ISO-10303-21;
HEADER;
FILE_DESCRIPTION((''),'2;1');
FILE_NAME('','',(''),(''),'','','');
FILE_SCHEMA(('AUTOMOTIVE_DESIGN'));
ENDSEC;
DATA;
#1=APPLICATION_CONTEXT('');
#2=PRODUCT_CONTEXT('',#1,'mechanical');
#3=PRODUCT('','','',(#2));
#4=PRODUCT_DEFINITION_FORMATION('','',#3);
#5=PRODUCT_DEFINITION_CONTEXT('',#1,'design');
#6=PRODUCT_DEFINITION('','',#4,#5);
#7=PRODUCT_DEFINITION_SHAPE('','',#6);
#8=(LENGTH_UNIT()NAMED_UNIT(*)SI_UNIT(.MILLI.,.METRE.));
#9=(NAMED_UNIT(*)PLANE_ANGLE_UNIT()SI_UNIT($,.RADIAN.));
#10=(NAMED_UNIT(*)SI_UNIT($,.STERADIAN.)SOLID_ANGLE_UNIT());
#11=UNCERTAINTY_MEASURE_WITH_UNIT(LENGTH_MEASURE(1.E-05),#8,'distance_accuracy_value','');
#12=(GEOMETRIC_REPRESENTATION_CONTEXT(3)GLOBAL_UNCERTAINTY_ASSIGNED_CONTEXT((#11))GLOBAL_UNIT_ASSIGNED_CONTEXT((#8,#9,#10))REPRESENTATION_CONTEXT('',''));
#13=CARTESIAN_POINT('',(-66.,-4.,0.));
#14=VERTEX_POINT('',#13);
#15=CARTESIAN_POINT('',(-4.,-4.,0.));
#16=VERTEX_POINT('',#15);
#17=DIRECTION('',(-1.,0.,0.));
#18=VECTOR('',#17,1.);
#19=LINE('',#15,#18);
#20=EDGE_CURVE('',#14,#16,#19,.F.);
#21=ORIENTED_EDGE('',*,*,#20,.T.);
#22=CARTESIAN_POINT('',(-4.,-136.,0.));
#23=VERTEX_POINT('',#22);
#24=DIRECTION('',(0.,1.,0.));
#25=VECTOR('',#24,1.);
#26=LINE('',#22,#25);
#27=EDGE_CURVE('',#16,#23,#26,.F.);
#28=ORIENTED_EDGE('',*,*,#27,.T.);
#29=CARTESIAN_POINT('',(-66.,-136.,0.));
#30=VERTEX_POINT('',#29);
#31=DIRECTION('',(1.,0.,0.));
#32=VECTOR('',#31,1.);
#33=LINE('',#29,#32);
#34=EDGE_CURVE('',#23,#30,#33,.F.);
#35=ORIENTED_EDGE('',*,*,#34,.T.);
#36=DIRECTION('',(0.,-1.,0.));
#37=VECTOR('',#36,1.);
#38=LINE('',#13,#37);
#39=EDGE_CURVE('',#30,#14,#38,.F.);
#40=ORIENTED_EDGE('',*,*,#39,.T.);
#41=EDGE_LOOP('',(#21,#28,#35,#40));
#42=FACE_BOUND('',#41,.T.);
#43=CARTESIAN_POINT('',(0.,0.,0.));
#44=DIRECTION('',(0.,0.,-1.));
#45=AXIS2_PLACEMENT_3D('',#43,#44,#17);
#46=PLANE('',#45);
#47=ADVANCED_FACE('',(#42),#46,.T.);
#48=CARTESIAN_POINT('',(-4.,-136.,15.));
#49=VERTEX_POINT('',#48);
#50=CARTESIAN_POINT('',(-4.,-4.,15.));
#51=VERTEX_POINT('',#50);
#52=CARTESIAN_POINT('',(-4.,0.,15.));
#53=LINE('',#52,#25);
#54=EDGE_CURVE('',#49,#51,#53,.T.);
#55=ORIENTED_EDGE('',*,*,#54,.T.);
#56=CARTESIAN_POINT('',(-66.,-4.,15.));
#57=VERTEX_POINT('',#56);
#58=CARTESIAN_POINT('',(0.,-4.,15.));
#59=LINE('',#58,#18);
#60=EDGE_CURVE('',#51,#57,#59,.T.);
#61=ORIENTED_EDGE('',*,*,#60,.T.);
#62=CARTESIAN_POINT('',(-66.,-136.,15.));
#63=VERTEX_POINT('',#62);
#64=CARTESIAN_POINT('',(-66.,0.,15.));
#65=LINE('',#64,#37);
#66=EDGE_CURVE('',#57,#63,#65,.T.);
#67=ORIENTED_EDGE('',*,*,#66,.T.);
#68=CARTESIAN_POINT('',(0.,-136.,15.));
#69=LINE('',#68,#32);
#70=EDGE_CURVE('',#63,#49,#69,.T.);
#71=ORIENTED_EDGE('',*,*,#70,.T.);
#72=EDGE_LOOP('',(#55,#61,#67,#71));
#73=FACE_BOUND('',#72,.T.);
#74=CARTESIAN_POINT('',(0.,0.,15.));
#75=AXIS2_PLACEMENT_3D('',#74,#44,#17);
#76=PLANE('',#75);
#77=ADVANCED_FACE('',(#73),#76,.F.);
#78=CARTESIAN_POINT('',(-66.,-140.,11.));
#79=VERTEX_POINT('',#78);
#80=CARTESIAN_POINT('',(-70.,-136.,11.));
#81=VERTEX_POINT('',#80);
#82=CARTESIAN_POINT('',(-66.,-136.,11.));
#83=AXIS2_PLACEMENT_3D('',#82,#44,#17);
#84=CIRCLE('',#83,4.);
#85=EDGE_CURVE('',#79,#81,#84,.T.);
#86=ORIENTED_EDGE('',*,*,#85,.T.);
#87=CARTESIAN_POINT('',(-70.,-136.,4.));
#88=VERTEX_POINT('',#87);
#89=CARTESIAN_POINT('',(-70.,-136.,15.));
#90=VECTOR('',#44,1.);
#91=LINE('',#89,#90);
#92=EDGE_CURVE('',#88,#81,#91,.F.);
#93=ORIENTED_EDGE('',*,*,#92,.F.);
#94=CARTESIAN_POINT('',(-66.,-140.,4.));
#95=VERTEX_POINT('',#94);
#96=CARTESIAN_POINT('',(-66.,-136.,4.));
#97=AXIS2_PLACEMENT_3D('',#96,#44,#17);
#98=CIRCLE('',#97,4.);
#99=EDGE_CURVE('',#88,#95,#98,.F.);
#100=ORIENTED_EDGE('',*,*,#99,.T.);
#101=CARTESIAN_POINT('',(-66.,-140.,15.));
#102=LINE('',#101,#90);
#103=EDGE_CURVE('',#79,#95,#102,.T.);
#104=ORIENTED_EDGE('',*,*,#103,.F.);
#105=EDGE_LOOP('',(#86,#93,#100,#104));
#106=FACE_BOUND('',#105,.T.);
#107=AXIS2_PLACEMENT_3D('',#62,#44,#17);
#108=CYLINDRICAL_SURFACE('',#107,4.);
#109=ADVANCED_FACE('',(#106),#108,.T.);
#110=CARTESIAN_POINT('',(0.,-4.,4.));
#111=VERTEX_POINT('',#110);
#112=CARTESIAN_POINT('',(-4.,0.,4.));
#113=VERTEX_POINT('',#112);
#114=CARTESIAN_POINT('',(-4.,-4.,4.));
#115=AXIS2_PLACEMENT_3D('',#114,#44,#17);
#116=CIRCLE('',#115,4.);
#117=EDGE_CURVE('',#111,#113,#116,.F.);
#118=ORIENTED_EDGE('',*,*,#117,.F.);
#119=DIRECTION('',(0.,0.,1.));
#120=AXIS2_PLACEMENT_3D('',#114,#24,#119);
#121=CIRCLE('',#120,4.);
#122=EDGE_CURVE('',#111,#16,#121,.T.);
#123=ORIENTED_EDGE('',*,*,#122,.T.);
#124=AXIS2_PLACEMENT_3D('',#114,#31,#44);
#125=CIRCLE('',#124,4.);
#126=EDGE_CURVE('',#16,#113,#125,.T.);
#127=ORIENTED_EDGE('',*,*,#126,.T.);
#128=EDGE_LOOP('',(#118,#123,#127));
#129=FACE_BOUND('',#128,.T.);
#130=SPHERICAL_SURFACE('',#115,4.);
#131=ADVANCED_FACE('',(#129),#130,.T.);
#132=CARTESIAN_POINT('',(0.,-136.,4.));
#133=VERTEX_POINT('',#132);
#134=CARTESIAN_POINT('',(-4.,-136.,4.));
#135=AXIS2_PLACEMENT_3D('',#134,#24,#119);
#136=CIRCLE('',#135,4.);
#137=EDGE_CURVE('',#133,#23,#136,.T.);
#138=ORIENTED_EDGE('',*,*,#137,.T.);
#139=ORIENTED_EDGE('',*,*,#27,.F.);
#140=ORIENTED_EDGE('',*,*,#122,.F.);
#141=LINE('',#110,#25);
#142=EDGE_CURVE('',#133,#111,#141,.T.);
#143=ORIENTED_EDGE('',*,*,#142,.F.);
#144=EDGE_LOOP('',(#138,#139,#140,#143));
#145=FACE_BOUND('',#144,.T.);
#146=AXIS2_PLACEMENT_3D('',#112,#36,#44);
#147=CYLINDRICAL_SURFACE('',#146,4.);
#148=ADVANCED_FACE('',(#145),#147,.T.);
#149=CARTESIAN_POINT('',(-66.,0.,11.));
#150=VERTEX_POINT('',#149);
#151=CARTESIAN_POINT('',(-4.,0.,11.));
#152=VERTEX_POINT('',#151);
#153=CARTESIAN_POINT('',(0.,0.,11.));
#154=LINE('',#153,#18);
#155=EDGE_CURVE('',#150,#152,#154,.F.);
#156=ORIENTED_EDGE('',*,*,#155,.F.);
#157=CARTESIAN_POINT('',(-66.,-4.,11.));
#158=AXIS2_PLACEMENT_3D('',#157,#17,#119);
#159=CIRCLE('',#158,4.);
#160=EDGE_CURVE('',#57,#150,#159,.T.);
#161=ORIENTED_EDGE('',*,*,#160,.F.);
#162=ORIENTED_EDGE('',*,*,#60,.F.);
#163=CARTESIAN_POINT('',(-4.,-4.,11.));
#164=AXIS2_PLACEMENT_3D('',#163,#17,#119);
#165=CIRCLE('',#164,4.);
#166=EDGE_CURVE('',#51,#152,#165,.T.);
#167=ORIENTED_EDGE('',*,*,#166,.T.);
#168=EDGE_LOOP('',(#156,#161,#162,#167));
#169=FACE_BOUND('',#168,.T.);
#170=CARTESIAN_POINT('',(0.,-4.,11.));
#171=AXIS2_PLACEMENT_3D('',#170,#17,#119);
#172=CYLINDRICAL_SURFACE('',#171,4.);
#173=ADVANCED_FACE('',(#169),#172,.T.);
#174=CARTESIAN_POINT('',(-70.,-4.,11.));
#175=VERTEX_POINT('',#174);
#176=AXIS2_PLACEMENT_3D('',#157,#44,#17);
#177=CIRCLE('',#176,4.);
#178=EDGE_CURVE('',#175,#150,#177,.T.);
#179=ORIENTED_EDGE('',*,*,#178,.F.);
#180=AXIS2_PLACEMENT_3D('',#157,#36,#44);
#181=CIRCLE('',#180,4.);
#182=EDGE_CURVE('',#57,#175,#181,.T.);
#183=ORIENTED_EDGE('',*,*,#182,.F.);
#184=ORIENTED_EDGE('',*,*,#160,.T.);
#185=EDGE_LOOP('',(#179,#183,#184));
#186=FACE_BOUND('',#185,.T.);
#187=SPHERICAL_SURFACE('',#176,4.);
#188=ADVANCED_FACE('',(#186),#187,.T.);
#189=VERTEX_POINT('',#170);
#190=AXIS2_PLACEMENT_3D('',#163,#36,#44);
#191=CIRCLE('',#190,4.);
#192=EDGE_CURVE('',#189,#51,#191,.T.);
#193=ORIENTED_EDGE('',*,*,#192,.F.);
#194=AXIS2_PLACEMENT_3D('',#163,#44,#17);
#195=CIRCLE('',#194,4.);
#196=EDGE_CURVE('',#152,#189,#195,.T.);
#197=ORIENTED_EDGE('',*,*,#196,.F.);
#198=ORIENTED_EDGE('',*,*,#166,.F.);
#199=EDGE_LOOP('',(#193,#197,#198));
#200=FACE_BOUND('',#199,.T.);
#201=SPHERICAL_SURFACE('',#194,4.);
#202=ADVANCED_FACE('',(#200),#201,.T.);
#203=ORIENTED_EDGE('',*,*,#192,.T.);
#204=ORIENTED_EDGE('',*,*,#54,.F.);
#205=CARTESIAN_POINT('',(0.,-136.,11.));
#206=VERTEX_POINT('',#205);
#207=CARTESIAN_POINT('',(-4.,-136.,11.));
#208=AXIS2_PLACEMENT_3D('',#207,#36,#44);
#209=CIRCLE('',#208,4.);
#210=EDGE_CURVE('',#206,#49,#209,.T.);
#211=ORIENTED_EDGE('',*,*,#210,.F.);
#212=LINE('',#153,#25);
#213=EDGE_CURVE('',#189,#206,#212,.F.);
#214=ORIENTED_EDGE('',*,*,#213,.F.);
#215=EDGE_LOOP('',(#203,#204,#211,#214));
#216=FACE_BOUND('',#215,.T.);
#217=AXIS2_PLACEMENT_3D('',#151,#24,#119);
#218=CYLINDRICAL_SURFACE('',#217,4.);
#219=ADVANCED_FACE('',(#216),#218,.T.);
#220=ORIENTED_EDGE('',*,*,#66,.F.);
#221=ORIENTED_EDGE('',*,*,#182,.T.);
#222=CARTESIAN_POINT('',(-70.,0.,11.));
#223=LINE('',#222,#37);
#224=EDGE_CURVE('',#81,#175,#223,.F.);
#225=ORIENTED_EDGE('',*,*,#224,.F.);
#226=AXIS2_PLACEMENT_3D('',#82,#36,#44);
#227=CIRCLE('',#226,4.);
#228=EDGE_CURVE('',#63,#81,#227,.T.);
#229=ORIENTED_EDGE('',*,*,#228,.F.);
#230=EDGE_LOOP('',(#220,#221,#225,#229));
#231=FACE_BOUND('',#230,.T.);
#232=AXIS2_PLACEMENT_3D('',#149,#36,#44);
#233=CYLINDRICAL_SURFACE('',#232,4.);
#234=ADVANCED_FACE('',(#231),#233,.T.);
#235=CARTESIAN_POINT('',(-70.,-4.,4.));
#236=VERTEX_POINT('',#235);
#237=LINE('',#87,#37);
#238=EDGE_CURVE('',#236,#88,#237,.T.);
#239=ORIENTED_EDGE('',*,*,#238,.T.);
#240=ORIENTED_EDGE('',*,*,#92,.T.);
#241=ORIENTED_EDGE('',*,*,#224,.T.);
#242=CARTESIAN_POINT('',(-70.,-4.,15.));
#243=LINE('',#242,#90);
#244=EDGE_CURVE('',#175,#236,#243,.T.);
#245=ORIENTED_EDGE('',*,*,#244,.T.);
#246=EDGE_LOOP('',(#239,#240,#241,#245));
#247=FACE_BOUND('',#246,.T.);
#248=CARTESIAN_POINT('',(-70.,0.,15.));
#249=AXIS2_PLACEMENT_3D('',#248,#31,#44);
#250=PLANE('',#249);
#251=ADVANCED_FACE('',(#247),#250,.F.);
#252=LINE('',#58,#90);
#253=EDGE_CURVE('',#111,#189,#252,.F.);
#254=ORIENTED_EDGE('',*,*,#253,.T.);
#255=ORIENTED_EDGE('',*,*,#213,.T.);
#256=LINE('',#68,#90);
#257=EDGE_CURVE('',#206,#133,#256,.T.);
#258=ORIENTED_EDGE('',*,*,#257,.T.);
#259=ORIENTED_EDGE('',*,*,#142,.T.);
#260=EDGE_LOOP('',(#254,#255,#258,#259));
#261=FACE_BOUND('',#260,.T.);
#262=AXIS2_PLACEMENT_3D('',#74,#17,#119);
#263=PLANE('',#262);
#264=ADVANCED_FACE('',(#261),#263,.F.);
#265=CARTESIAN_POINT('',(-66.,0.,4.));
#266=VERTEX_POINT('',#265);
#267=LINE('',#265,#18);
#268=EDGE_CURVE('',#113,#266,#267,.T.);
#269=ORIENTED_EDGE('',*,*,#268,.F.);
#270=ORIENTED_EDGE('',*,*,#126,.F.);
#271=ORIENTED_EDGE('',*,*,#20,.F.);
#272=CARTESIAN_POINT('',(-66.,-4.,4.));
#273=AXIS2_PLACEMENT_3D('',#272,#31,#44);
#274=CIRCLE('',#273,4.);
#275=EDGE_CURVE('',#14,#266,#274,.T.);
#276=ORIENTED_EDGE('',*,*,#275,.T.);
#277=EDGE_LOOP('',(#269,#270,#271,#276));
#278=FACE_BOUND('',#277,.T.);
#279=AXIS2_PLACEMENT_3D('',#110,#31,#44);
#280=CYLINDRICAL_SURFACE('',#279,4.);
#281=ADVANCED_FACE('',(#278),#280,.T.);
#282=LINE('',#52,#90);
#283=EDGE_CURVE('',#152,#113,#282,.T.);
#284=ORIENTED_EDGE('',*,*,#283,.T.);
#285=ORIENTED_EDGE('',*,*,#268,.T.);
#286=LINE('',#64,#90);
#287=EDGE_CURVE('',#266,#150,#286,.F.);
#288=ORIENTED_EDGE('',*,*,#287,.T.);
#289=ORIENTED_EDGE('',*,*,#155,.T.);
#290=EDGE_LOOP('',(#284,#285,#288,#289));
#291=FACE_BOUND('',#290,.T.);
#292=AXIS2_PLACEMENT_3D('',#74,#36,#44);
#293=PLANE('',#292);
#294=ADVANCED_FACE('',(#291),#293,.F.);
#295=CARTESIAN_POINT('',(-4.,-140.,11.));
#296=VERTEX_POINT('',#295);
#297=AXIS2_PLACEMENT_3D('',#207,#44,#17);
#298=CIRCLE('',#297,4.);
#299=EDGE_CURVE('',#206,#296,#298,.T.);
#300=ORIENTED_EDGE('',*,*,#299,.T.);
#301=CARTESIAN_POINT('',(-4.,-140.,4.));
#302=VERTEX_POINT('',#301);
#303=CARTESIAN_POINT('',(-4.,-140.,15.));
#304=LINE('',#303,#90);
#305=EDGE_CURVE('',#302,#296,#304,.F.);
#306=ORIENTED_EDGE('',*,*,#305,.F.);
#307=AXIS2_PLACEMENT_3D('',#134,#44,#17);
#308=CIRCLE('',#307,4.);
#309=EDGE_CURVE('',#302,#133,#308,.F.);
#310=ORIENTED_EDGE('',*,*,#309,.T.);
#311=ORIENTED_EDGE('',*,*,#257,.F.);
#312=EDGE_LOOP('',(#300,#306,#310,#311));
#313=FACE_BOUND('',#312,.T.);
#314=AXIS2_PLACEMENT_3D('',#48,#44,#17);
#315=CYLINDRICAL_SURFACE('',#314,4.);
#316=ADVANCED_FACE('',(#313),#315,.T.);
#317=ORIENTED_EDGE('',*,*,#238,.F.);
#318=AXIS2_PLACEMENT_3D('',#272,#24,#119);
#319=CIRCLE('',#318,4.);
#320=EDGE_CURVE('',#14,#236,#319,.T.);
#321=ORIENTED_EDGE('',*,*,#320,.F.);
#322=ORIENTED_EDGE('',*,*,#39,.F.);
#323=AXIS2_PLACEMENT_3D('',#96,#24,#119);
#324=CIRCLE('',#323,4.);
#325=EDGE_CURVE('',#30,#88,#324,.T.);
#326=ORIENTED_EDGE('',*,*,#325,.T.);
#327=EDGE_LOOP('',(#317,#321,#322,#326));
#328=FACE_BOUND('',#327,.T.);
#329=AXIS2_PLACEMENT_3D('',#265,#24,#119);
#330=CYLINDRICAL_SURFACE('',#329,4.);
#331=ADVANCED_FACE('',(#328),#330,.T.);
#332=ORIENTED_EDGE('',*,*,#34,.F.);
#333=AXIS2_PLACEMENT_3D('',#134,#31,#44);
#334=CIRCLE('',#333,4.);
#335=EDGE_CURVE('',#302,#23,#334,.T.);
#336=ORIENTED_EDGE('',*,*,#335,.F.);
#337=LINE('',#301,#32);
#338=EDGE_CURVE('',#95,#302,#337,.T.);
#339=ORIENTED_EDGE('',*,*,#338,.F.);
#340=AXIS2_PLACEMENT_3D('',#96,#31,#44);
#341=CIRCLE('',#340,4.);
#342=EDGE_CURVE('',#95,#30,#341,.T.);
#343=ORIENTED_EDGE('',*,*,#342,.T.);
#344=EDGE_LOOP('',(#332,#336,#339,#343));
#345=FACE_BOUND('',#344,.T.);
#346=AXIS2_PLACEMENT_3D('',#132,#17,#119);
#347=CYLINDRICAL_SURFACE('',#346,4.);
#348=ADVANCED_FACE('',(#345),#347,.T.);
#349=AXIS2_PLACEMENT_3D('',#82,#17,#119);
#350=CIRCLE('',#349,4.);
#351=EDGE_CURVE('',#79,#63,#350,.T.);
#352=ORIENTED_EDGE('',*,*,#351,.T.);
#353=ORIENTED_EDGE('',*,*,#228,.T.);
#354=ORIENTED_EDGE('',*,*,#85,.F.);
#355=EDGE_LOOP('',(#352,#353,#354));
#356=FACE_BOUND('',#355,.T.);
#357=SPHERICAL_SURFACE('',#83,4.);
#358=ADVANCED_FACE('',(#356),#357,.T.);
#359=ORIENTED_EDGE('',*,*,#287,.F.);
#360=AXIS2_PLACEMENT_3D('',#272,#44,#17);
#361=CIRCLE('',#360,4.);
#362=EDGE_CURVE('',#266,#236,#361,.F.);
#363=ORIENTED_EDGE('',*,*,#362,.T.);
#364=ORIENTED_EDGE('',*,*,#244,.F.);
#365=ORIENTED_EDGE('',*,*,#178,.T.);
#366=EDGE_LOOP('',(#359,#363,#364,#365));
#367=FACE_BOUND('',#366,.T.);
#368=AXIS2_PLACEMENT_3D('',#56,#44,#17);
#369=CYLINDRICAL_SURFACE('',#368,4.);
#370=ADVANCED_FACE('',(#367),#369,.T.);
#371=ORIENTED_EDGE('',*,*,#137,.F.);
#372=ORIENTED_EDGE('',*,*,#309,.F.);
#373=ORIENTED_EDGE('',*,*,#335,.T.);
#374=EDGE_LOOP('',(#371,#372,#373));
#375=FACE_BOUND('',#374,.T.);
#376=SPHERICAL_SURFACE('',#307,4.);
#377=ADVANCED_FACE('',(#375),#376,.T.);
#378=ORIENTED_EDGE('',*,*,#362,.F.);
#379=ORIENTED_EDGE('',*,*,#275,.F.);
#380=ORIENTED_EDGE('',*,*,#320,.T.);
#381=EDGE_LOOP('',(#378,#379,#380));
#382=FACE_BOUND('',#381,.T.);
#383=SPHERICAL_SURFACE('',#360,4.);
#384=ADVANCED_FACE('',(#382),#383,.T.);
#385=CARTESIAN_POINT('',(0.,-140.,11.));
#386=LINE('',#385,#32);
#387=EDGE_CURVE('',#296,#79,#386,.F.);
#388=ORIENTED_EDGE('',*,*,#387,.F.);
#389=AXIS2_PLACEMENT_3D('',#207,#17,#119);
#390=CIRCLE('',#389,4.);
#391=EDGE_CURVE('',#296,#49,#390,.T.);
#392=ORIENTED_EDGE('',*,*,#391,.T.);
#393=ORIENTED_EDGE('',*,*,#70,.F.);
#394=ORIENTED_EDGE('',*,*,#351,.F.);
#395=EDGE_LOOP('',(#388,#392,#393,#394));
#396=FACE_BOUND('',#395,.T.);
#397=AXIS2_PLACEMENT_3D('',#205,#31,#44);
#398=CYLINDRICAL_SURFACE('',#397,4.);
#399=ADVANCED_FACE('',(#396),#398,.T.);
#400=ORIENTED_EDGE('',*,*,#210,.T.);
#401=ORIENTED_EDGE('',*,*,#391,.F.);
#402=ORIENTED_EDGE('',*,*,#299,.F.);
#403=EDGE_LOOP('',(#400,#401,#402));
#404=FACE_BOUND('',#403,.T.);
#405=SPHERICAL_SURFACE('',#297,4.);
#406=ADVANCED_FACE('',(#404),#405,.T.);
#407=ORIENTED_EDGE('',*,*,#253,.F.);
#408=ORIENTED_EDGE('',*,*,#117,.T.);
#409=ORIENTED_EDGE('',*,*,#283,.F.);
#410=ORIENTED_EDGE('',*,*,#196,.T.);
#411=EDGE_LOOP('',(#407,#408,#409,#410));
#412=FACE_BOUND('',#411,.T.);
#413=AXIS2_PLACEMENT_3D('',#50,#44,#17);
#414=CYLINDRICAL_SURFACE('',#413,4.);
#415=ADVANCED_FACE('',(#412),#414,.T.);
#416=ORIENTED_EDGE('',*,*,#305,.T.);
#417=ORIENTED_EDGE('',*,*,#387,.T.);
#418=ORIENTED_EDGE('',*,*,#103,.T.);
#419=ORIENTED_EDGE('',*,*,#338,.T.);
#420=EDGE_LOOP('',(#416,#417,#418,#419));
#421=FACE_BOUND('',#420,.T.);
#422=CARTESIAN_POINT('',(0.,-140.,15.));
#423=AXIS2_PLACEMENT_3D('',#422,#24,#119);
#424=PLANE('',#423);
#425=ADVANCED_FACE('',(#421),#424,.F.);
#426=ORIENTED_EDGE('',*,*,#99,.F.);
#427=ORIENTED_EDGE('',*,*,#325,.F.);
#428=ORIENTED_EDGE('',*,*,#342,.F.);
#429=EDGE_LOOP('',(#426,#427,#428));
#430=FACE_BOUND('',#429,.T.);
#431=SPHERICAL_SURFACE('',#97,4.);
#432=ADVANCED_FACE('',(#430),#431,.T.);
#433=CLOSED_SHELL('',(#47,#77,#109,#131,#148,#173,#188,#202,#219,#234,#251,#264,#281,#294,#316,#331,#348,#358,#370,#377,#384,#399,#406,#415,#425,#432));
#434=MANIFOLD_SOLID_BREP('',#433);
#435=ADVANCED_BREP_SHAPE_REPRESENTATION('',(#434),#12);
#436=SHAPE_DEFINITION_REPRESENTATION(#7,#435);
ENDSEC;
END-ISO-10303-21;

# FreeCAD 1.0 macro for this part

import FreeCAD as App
import Part
import Sketcher
Q = App.Units.Quantity


def edges_at(feature, points):
    """Names of the edges that pass closest to the given points."""
    edges = feature.Shape.Edges
    near = lambda p: min(range(len(edges)), key=lambda i: edges[i].distToShape(Part.Vertex(*p))[0])
    return sorted({f"Edge{near(p) + 1}" for p in points})

doc = App.newDocument("Part")
body = doc.addObject("PartDesign::Body", "Body")

# Sketch on XY plane
sketch1 = body.newObject("Sketcher::SketchObject", "Sketch")
sketch1.AttachmentSupport = (doc.getObject("XY_Plane"), [""])
sketch1.MapMode = "FlatFace"
sketch1.addGeometry([
    Part.LineSegment(App.Vector(-70, 0, 0), App.Vector(-70, -140, 0)),
    Part.LineSegment(App.Vector(-70, -140, 0), App.Vector(0, -140, 0)),
    Part.LineSegment(App.Vector(0, -140, 0), App.Vector(0, 0, 0)),
    Part.LineSegment(App.Vector(0, 0, 0), App.Vector(-70, 0, 0)),
], False)
sketch1.addConstraint([
    Sketcher.Constraint("Coincident", 0, 2, 1, 1),
    Sketcher.Constraint("Coincident", 1, 2, 2, 1),
    Sketcher.Constraint("Coincident", 2, 2, 3, 1),
    Sketcher.Constraint("Coincident", 3, 2, 0, 1),
    Sketcher.Constraint("Vertical", 0),
    Sketcher.Constraint("Horizontal", 1),
    Sketcher.Constraint("Vertical", 2),
    Sketcher.Constraint("Horizontal", 3),
    Sketcher.Constraint("Coincident", 2, 2, -1, 1),
    Sketcher.Constraint("DistanceX", 1, 1, 1, 2, Q("70 mm")),
    Sketcher.Constraint("DistanceY", 0, 2, 0, 1, Q("140 mm")),
])
pad1 = body.newObject("PartDesign::Pad", "Pad")
pad1.Profile = sketch1
pad1.Length = 15
doc.recompute()

fillet = body.newObject("PartDesign::Fillet", "Fillet")
fillet.Base = (pad1, edges_at(pad1, [
    (0, -140, 7.5),
    (-70, -140, 7.5),
    (-70, 0, 7.5),
    (0, 0, 7.5),
]))
fillet.Radius = 4
doc.recompute()

fillet2 = body.newObject("PartDesign::Fillet", "Fillet001")
fillet2.Base = (fillet, edges_at(fillet, [
    (0, -70, 15),
    (-35, -140, 15),
    (-35, 0, 15),
    (-70, -70, 15),
    (-1.172, -1.172, 15),
    (-68.828, -1.172, 15),
    (-68.828, -138.828, 15),
    (-1.172, -138.828, 15),
]))
fillet2.Radius = 4
doc.recompute()

fillet3 = body.newObject("PartDesign::Fillet", "Fillet002")
fillet3.Base = (fillet2, edges_at(fillet2, [
    (0, -70, 0),
    (-35, -140, 0),
    (-70, -70, 0),
    (-35, 0, 0),
    (-1.172, -1.172, 0),
    (-68.828, -1.172, 0),
    (-68.828, -138.828, 0),
    (-1.172, -138.828, 0),
]))
fillet3.Radius = 4

doc.recompute()
